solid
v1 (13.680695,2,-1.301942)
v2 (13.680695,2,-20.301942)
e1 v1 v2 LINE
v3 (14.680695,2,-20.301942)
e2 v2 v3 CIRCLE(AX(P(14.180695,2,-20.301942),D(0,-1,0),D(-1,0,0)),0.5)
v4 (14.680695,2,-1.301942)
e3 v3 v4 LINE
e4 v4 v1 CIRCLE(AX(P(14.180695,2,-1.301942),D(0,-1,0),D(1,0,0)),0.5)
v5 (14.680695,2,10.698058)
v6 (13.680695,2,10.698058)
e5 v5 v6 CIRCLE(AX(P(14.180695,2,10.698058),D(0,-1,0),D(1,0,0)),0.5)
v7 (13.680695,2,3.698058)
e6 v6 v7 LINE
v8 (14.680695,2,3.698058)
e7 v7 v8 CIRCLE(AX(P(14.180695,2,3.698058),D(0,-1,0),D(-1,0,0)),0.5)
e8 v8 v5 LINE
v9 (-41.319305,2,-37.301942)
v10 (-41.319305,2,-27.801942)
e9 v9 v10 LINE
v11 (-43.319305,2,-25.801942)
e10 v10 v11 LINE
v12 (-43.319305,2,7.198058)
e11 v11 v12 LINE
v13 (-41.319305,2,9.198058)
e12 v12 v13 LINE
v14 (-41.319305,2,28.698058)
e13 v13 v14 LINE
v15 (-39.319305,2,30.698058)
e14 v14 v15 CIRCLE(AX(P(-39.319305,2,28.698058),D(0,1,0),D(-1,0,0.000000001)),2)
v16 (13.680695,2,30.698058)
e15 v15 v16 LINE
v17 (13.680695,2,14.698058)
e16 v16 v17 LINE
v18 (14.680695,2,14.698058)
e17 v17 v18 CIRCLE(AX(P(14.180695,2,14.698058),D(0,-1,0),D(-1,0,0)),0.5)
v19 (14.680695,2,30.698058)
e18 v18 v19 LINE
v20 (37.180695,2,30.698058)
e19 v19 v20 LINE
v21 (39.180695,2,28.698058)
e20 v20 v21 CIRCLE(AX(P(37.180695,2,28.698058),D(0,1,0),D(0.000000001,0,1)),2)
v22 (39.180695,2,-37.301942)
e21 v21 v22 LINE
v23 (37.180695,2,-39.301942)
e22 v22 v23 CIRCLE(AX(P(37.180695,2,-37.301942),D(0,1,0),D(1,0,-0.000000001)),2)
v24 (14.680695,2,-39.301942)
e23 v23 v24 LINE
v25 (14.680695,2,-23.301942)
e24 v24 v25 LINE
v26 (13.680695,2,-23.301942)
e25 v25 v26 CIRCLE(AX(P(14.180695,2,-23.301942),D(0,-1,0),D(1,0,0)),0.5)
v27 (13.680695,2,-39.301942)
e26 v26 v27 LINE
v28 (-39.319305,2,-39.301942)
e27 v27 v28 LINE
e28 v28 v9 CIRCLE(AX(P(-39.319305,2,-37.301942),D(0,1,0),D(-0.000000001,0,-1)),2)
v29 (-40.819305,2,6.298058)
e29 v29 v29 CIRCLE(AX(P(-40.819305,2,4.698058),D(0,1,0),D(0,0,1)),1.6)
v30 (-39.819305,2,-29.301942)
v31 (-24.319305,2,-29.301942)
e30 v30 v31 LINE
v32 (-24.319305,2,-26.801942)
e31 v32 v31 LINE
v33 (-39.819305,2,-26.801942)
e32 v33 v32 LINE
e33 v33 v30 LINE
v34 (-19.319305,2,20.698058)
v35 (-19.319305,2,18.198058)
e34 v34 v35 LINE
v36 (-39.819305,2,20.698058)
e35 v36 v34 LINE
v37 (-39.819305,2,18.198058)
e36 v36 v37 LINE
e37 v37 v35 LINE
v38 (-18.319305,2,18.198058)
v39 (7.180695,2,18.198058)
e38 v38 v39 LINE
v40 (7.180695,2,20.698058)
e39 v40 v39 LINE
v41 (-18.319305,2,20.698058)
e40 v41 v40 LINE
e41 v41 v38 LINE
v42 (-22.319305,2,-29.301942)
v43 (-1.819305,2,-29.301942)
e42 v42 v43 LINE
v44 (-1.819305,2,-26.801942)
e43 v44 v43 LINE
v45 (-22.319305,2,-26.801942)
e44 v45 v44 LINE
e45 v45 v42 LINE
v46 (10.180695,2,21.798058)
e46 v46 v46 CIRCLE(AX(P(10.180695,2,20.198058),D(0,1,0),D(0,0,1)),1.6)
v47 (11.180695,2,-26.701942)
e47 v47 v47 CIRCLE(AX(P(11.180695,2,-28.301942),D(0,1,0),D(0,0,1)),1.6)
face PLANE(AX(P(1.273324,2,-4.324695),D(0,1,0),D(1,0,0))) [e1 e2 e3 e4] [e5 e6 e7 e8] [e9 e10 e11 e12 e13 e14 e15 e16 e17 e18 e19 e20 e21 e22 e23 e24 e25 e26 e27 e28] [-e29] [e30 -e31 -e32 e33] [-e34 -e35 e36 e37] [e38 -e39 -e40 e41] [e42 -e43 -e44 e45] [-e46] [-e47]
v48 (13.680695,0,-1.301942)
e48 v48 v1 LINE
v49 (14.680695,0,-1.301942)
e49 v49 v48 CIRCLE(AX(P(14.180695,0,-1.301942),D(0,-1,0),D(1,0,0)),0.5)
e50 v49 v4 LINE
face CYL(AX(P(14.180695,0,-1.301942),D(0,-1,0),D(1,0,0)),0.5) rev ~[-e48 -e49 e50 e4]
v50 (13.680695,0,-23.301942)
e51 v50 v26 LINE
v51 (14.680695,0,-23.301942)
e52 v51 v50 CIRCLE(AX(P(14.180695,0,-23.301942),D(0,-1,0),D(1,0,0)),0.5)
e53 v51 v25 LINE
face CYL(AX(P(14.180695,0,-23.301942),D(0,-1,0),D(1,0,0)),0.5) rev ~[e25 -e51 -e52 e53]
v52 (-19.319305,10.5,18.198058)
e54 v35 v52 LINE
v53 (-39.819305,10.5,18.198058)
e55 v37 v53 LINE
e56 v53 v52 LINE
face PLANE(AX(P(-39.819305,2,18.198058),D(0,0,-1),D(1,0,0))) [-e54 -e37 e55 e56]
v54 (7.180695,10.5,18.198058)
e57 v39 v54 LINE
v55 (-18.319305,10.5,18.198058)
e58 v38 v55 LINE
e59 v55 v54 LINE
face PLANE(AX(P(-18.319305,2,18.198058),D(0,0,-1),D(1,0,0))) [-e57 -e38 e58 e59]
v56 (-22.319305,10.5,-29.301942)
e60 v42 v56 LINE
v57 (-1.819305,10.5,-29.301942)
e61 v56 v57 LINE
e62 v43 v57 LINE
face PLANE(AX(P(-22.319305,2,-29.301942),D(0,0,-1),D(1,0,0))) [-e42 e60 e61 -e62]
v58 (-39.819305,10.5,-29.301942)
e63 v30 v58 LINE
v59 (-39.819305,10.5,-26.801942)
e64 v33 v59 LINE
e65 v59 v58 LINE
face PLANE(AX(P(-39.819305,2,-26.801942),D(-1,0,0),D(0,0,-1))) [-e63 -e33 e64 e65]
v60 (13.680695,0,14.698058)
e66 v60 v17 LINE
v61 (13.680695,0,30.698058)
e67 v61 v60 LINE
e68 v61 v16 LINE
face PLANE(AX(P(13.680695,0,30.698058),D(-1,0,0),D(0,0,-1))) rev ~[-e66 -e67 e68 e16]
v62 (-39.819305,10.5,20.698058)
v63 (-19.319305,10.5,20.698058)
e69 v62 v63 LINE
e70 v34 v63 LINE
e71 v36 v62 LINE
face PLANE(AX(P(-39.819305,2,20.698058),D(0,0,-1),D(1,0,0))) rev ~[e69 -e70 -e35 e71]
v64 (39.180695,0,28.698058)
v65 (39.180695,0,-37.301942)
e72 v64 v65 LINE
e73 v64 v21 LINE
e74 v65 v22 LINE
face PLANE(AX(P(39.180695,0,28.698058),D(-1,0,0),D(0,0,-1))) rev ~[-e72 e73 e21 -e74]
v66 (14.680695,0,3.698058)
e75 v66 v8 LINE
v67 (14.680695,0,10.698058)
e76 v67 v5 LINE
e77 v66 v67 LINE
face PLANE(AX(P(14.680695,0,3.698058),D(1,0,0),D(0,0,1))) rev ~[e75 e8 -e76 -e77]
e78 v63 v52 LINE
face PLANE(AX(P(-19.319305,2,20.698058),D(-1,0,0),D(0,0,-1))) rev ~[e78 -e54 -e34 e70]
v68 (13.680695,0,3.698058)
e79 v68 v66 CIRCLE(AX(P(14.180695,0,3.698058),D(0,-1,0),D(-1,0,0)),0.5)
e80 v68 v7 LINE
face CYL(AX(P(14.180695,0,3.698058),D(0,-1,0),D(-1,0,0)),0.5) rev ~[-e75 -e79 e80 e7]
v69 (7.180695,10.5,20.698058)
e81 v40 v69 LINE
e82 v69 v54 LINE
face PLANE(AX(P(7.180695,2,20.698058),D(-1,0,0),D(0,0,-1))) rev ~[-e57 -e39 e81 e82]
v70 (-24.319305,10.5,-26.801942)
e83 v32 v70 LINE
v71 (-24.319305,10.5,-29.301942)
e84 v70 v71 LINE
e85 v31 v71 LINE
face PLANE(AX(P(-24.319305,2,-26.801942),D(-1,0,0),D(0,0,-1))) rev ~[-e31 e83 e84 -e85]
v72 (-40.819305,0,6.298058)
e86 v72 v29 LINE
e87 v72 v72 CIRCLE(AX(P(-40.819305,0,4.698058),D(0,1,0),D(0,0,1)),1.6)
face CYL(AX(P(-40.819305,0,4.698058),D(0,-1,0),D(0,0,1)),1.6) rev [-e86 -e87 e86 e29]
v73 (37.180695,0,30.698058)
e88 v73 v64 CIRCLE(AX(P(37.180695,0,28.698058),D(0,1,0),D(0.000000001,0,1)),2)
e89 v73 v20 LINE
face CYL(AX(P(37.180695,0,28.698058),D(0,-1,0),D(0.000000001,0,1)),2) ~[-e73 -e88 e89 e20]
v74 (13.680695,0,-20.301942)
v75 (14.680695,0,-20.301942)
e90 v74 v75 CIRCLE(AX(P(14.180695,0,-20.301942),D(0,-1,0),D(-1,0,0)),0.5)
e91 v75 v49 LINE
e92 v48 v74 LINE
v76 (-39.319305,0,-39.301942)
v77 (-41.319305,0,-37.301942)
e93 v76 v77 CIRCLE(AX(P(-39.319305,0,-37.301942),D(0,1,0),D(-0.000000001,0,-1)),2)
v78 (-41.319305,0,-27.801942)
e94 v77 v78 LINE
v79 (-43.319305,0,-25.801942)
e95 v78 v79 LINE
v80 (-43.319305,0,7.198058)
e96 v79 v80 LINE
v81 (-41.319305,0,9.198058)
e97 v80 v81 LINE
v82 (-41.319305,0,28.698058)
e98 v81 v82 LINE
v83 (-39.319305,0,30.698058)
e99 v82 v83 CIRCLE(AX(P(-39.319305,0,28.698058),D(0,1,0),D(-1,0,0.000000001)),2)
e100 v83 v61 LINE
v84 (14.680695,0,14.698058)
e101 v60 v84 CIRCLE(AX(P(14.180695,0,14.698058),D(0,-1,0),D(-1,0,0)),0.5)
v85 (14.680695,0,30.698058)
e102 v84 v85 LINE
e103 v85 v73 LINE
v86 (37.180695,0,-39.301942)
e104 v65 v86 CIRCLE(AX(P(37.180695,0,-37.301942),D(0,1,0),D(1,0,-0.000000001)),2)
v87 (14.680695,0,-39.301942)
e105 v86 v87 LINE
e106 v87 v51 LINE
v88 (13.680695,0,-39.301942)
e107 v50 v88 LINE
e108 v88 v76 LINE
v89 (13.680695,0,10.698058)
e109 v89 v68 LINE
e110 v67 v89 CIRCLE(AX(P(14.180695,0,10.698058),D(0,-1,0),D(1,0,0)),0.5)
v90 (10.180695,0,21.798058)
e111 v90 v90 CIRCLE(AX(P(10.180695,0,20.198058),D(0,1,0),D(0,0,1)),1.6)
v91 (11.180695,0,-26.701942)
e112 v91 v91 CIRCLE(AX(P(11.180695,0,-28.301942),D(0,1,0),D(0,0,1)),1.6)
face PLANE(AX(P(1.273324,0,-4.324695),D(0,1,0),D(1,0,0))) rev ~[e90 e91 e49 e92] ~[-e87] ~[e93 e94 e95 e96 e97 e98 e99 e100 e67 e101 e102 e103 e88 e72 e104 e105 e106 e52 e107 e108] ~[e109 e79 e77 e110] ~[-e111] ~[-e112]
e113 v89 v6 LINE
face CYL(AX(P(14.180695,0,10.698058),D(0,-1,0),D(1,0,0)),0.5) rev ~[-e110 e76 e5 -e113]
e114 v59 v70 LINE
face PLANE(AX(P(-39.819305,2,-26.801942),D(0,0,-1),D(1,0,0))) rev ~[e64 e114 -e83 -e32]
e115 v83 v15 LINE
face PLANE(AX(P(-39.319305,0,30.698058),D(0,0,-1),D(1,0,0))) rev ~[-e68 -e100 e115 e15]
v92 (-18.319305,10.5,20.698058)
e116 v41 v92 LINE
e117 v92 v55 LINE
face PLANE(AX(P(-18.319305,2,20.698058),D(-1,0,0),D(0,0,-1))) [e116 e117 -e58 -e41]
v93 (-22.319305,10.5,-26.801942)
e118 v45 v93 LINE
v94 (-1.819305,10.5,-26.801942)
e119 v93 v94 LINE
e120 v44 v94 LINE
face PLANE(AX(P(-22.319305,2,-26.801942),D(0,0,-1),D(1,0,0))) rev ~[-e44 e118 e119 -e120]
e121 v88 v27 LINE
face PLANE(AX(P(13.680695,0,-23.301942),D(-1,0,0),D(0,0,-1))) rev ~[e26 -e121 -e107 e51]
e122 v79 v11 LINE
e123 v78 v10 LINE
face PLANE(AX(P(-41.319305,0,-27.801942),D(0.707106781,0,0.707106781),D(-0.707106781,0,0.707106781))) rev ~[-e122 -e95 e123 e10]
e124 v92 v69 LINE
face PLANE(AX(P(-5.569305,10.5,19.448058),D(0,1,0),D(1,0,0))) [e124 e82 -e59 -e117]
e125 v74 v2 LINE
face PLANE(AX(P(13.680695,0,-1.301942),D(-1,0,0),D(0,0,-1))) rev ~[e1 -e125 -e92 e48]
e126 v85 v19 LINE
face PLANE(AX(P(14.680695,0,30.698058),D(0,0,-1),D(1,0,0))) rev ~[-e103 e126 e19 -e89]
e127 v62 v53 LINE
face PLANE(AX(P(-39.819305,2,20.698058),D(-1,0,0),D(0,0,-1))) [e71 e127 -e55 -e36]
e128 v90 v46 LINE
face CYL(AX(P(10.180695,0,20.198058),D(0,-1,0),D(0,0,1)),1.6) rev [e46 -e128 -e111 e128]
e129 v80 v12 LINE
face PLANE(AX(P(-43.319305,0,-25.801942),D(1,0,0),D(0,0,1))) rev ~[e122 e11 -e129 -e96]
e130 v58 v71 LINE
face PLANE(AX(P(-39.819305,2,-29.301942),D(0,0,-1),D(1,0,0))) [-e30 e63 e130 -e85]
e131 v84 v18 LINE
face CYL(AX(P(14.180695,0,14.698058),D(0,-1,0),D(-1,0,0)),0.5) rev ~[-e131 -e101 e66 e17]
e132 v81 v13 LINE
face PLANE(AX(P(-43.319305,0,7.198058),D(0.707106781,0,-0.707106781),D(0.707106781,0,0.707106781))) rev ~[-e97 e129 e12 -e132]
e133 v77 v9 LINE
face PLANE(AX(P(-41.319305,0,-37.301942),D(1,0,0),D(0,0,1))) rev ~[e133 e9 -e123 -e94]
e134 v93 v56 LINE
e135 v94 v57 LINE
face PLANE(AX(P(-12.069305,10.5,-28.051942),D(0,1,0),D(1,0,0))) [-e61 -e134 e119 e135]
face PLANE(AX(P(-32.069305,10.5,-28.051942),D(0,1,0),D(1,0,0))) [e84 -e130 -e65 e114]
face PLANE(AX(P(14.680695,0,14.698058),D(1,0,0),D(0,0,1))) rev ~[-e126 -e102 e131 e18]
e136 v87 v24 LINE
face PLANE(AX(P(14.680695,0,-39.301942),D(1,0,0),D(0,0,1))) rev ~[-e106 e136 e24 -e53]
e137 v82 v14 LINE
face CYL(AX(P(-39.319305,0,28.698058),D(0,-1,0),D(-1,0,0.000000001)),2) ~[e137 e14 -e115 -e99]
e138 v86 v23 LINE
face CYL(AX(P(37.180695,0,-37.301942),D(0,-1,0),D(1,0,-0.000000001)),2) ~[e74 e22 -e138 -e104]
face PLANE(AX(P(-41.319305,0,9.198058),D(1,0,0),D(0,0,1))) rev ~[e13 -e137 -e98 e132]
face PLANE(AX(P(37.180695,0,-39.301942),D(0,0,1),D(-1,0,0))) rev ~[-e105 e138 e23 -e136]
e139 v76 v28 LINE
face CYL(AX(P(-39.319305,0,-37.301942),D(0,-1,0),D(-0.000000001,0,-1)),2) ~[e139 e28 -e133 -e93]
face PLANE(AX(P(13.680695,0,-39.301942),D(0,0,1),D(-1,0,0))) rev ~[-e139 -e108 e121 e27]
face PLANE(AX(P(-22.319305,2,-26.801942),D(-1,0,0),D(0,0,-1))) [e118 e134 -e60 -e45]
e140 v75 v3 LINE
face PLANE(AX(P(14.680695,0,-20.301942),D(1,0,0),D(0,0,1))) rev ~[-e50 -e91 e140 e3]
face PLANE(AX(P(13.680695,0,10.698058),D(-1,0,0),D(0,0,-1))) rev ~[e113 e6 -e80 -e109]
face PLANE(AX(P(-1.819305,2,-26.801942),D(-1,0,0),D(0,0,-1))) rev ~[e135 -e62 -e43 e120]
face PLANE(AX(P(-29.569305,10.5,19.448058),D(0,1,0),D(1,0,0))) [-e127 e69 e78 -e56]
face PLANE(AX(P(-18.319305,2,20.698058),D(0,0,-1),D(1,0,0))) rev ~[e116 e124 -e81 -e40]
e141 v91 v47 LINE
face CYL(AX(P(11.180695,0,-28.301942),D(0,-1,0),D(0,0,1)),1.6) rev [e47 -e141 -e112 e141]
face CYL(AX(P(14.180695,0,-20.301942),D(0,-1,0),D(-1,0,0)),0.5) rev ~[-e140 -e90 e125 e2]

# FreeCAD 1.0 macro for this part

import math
import FreeCAD as App
import Part
import Sketcher
from FreeCAD import Vector


def add_polygon(sketch, points):
    """Adds a closed chain of lines whose ends are joined by coincident constraints."""
    first, n = sketch.GeometryCount, len(points)
    for a, b in zip(points, points[1:] + points[:1]):
        sketch.addGeometry(Part.LineSegment(App.Vector(*a, 0), App.Vector(*b, 0)), False)
    for i in range(n):
        sketch.addConstraint(Sketcher.Constraint("Coincident", first + i, 2, first + (i + 1) % n, 1))

doc = App.newDocument("Part")
body = doc.addObject("PartDesign::Body", "Body")

# Sketch on XZ plane
sketch1 = doc.addObject("Sketcher::SketchObject", "Sketch")
body.addObject(sketch1)
sketch1.AttachmentSupport = (doc.XZ_Plane, [""])
sketch1.MapMode = "FlatFace"
sketch1.addGeometry([
    Part.LineSegment(Vector(-43.3, -25.8, 0), Vector(-43.3, 7.2, 0)),  # 0
    Part.LineSegment(Vector(-43.3, 7.2, 0), Vector(-41.3, 9.2, 0)),  # 1
    Part.LineSegment(Vector(-41.3, 9.2, 0), Vector(-41.3, 28.7, 0)),  # 2
    Part.ArcOfCircle(Part.Circle(Vector(-39.3, 28.7, 0), Vector(0, 0, 1), 2), math.radians(90), math.radians(180)),  # 3
    Part.LineSegment(Vector(-39.3, 30.7, 0), Vector(13.7, 30.7, 0)),  # 4
    Part.LineSegment(Vector(13.7, 30.7, 0), Vector(13.7, 14.7, 0)),  # 5
    Part.ArcOfCircle(Part.Circle(Vector(14.2, 14.7, 0), Vector(0, 0, 1), 0.5), math.radians(180), math.radians(360)),  # 6
    Part.LineSegment(Vector(14.7, 14.7, 0), Vector(14.7, 30.7, 0)),  # 7
    Part.LineSegment(Vector(14.7, 30.7, 0), Vector(37.2, 30.7, 0)),  # 8
    Part.ArcOfCircle(Part.Circle(Vector(37.2, 28.7, 0), Vector(0, 0, 1), 2), math.radians(0), math.radians(90)),  # 9
    Part.LineSegment(Vector(39.2, 28.7, 0), Vector(39.2, -37.3, 0)),  # 10
    Part.ArcOfCircle(Part.Circle(Vector(37.2, -37.3, 0), Vector(0, 0, 1), 2), math.radians(-90), math.radians(0)),  # 11
    Part.LineSegment(Vector(37.2, -39.3, 0), Vector(14.7, -39.3, 0)),  # 12
    Part.LineSegment(Vector(14.7, -39.3, 0), Vector(14.7, -23.3, 0)),  # 13
    Part.ArcOfCircle(Part.Circle(Vector(14.2, -23.3, 0), Vector(0, 0, 1), 0.5), math.radians(0), math.radians(180)),  # 14
    Part.LineSegment(Vector(13.7, -23.3, 0), Vector(13.7, -39.3, 0)),  # 15
    Part.LineSegment(Vector(13.7, -39.3, 0), Vector(-39.3, -39.3, 0)),  # 16
    Part.ArcOfCircle(Part.Circle(Vector(-39.3, -37.3, 0), Vector(0, 0, 1), 2), math.radians(-180), math.radians(-90)),  # 17
    Part.LineSegment(Vector(-41.3, -37.3, 0), Vector(-41.3, -27.8, 0)),  # 18
    Part.LineSegment(Vector(-41.3, -27.8, 0), Vector(-43.3, -25.8, 0)),  # 19
    Part.Circle(Vector(-40.8, 4.7, 0), Vector(0, 0, 1), 1.6),  # 20
    Part.Circle(Vector(10.2, 20.2, 0), Vector(0, 0, 1), 1.6),  # 21
    Part.LineSegment(Vector(13.7, 10.7, 0), Vector(13.7, 3.7, 0)),  # 22
    Part.ArcOfCircle(Part.Circle(Vector(14.2, 3.7, 0), Vector(0, 0, 1), 0.5), math.radians(180), math.radians(360)),  # 23
    Part.LineSegment(Vector(14.7, 3.7, 0), Vector(14.7, 10.7, 0)),  # 24
    Part.ArcOfCircle(Part.Circle(Vector(14.2, 10.7, 0), Vector(0, 0, 1), 0.5), math.radians(0), math.radians(180)),  # 25
    Part.LineSegment(Vector(13.7, -1.3, 0), Vector(13.7, -20.3, 0)),  # 26
    Part.ArcOfCircle(Part.Circle(Vector(14.2, -20.3, 0), Vector(0, 0, 1), 0.5), math.radians(180), math.radians(360)),  # 27
    Part.LineSegment(Vector(14.7, -20.3, 0), Vector(14.7, -1.3, 0)),  # 28
    Part.ArcOfCircle(Part.Circle(Vector(14.2, -1.3, 0), Vector(0, 0, 1), 0.5), math.radians(0), math.radians(180)),  # 29
    Part.Circle(Vector(11.2, -28.3, 0), Vector(0, 0, 1), 1.6),  # 30
], False)
sketch1.addConstraint([
    Sketcher.Constraint("Coincident", 0, 2, 1, 1),
    Sketcher.Constraint("Coincident", 1, 2, 2, 1),
    Sketcher.Constraint("Tangent", 2, 2, 3, 2),
    Sketcher.Constraint("Tangent", 3, 1, 4, 1),
    Sketcher.Constraint("Coincident", 4, 2, 5, 1),
    Sketcher.Constraint("Tangent", 5, 2, 6, 1),
    Sketcher.Constraint("Tangent", 6, 2, 7, 1),
    Sketcher.Constraint("Coincident", 7, 2, 8, 1),
    Sketcher.Constraint("Tangent", 8, 2, 9, 2),
    Sketcher.Constraint("Tangent", 9, 1, 10, 1),
    Sketcher.Constraint("Tangent", 10, 2, 11, 2),
    Sketcher.Constraint("Tangent", 11, 1, 12, 1),
    Sketcher.Constraint("Coincident", 12, 2, 13, 1),
    Sketcher.Constraint("Tangent", 13, 2, 14, 1),
    Sketcher.Constraint("Tangent", 14, 2, 15, 1),
    Sketcher.Constraint("Coincident", 15, 2, 16, 1),
    Sketcher.Constraint("Tangent", 16, 2, 17, 2),
    Sketcher.Constraint("Tangent", 17, 1, 18, 1),
    Sketcher.Constraint("Coincident", 18, 2, 19, 1),
    Sketcher.Constraint("Coincident", 19, 2, 0, 1),
    Sketcher.Constraint("Tangent", 22, 2, 23, 1),
    Sketcher.Constraint("Tangent", 23, 2, 24, 1),
    Sketcher.Constraint("Tangent", 24, 2, 25, 1),
    Sketcher.Constraint("Tangent", 25, 2, 22, 1),
    Sketcher.Constraint("Tangent", 26, 2, 27, 1),
    Sketcher.Constraint("Tangent", 27, 2, 28, 1),
    Sketcher.Constraint("Tangent", 28, 2, 29, 1),
    Sketcher.Constraint("Tangent", 29, 2, 26, 1),
    Sketcher.Constraint("Vertical", 0),
    Sketcher.Constraint("Vertical", 2),
    Sketcher.Constraint("Horizontal", 4),
    Sketcher.Constraint("Vertical", 5),
    Sketcher.Constraint("Vertical", 7),
    Sketcher.Constraint("Horizontal", 8),
    Sketcher.Constraint("Vertical", 10),
    Sketcher.Constraint("Horizontal", 12),
    Sketcher.Constraint("Vertical", 13),
    Sketcher.Constraint("Vertical", 15),
    Sketcher.Constraint("Horizontal", 16),
    Sketcher.Constraint("Vertical", 18),
    Sketcher.Constraint("Vertical", 22),
    Sketcher.Constraint("Vertical", 24),
    Sketcher.Constraint("Vertical", 26),
    Sketcher.Constraint("Vertical", 28),
    Sketcher.Constraint("Equal", 3, 9),
    Sketcher.Constraint("Equal", 9, 11),
    Sketcher.Constraint("Equal", 6, 14),
    Sketcher.Constraint("Equal", 11, 17),
    Sketcher.Constraint("Equal", 20, 21),
    Sketcher.Constraint("Equal", 14, 23),
    Sketcher.Constraint("Equal", 25, 27),
    Sketcher.Constraint("Equal", 21, 30),
    Sketcher.Constraint("Perpendicular", 1, 19),
    Sketcher.Constraint("Horizontal", 3, 3, 9, 3),
    Sketcher.Constraint("Horizontal", 11, 3, 17, 3),
    Sketcher.Constraint("Vertical", 6, 3, 14, 3),
    Sketcher.Constraint("Vertical", 3, 3, 17, 3),
    Sketcher.Constraint("Vertical", 14, 3, 23, 3),
    Sketcher.Constraint("Vertical", 25, 3, 27, 3),
    Sketcher.Constraint("Equal", 7, 13),
    Sketcher.Constraint("Equal", 1, 19),
    Sketcher.Constraint("Radius", 3, 2.0),
    Sketcher.Constraint("Diameter", 20, 3.2),
    Sketcher.Constraint("Radius", 6, 0.5),
    Sketcher.Constraint("DistanceX", 4, 1, 4, 2, 53.0),
    Sketcher.Constraint("DistanceY", 0, 1, 0, 2, 33.0),
    Sketcher.Constraint("DistanceY", 5, 2, 5, 1, 16.0),
    Sketcher.Constraint("DistanceY", 10, 2, 10, 1, 66.0),
    Sketcher.Constraint("DistanceY", 22, 2, 22, 1, 7.0),
    Sketcher.Constraint("DistanceY", 26, 2, 26, 1, 19.0),
    Sketcher.Constraint("DistanceX", 8, 1, 8, 2, 22.5),
    Sketcher.Constraint("DistanceY", 2, 1, 2, 2, 19.5),
    Sketcher.Constraint("DistanceY", 18, 1, 18, 2, 9.5),
    Sketcher.Constraint("DistanceY", 20, 3, 3, 3, 24.0),
    Sketcher.Constraint("DistanceX", 20, 3, 6, 3, 55.0),
    Sketcher.Constraint("DistanceX", 21, 3, 6, 3, 4.0),
    Sketcher.Constraint("DistanceY", 23, 3, 6, 3, 11.0),
    Sketcher.Constraint("DistanceY", 14, 3, 27, 3, 3.0),
    Sketcher.Constraint("DistanceX", 30, 3, 14, 3, 3.0),
    Sketcher.Constraint("DistanceY", 30, 3, 14, 3, 5.0),
    Sketcher.Constraint("DistanceY", 0, 2, 21, 3, 13.0),
    Sketcher.Constraint("DistanceY", -1, 1, 3, 3, 28.698058),
    Sketcher.Constraint("DistanceX", 3, 3, -1, 1, 39.319305),
])
pad1 = doc.addObject("PartDesign::Pad", "Pad")
body.addObject(pad1)
pad1.Profile = sketch1
pad1.Length = 2
pad1.Reversed = True

# Sketch on XZ plane
sketch2 = doc.addObject("Sketcher::SketchObject", "Sketch001")
body.addObject(sketch2)
sketch2.AttachmentSupport = (doc.XZ_Plane, [""])
sketch2.MapMode = "FlatFace"
sketch2.AttachmentOffset = App.Placement(Vector(0, 0, -2), App.Rotation())
add_polygon(sketch2, [(-39.8, -29.3), (-39.8, -26.8), (-24.3, -26.8), (-24.3, -29.3)])  # lines 0-3
add_polygon(sketch2, [(-22.3, -29.3), (-22.3, -26.8), (-1.8, -26.8), (-1.8, -29.3)])  # lines 4-7
add_polygon(sketch2, [(-39.8, 18.2), (-39.8, 20.7), (-19.3, 20.7), (-19.3, 18.2)])  # lines 8-11
add_polygon(sketch2, [(-18.3, 18.2), (-18.3, 20.7), (7.2, 20.7), (7.2, 18.2)])  # lines 12-15
sketch2.addConstraint([
    Sketcher.Constraint("Vertical", 0),
    Sketcher.Constraint("Horizontal", 1),
    Sketcher.Constraint("Vertical", 2),
    Sketcher.Constraint("Horizontal", 3),
    Sketcher.Constraint("Vertical", 4),
    Sketcher.Constraint("Horizontal", 5),
    Sketcher.Constraint("Vertical", 6),
    Sketcher.Constraint("Horizontal", 7),
    Sketcher.Constraint("Vertical", 8),
    Sketcher.Constraint("Horizontal", 9),
    Sketcher.Constraint("Vertical", 10),
    Sketcher.Constraint("Horizontal", 11),
    Sketcher.Constraint("Vertical", 12),
    Sketcher.Constraint("Horizontal", 13),
    Sketcher.Constraint("Vertical", 14),
    Sketcher.Constraint("Horizontal", 15),
    Sketcher.Constraint("Horizontal", 1, 2, 4, 2),
    Sketcher.Constraint("Horizontal", 3, 2, 6, 2),
    Sketcher.Constraint("Horizontal", 9, 2, 12, 2),
    Sketcher.Constraint("Horizontal", 11, 2, 14, 2),
    Sketcher.Constraint("Vertical", 3, 2, 8, 2),
    Sketcher.Constraint("Equal", 7, 9),
    Sketcher.Constraint("Equal", 6, 8),
    Sketcher.Constraint("DistanceX", 1, 1, 1, 2, 15.5),
    Sketcher.Constraint("DistanceX", 5, 1, 5, 2, 20.5),
    Sketcher.Constraint("DistanceX", 13, 1, 13, 2, 25.5),
    Sketcher.Constraint("DistanceY", 0, 1, 0, 2, 2.5),
    Sketcher.Constraint("DistanceX", 1, 2, 4, 2, 2.0),
    Sketcher.Constraint("DistanceY", 3, 2, 8, 2, 50.0),
    Sketcher.Constraint("DistanceX", 9, 2, 12, 2, 1.0),
    Sketcher.Constraint("DistanceY", 0, 2, -1, 1, 26.801942),
    Sketcher.Constraint("DistanceX", 0, 2, -1, 1, 39.819305),
])
pad2 = doc.addObject("PartDesign::Pad", "Pad001")
body.addObject(pad2)
pad2.Profile = sketch2
pad2.Length = 8.5
pad2.Reversed = True

doc.recompute()
